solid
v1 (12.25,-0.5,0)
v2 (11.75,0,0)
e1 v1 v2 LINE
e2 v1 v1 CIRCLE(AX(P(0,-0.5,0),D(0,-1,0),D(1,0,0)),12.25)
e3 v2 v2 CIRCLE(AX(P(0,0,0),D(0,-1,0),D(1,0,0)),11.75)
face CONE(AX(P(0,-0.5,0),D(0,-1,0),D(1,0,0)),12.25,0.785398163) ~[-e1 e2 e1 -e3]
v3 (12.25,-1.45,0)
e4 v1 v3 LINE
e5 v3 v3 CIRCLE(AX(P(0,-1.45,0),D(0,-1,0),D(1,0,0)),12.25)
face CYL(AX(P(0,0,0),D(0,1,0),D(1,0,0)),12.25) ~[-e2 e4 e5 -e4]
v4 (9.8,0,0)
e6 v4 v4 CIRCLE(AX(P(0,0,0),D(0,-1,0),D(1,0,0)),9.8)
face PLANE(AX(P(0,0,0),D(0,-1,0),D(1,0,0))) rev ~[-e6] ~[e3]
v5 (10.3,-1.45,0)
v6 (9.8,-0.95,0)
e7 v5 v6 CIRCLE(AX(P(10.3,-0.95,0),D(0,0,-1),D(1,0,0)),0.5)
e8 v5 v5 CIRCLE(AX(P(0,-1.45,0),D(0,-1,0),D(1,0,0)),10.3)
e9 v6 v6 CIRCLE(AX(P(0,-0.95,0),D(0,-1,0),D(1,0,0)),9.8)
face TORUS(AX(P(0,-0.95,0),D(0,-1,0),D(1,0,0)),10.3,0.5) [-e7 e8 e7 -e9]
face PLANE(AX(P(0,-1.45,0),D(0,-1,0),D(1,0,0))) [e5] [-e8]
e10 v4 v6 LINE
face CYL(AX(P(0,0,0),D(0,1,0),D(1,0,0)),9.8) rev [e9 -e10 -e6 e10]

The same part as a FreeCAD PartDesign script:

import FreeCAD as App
import Part
import Sketcher
from FreeCAD import Vector


def edges_at(feature, points):
    """Names of the edges that pass closest to the given points."""
    edges = feature.Shape.Edges
    near = lambda p: min(range(len(edges)), key=lambda i: edges[i].distToShape(Part.Vertex(*p))[0])
    return sorted({f"Edge{near(p) + 1}" for p in points})

doc = App.newDocument("Part")
params = doc.addObject("Spreadsheet::Sheet", "Params")
for row, (alias, value) in enumerate([
    ("sketch1_diameter", "24.5 mm"),
    ("sketch1_diameter2", "19.6 mm"),
    ("pad1_length", "1.45 mm"),
    ("chamfer_size", "0.5 mm"),
    ("fillet_radius", "0.5 mm"),
], start=1):
    params.set(f"A{row}", alias)
    params.set(f"B{row}", "=" + value)
    params.setAlias(f"B{row}", alias)

body = doc.addObject("PartDesign::Body", "Body")

sketch1 = doc.addObject("Sketcher::SketchObject", "Sketch")
body.addObject(sketch1)
sketch1.AttachmentSupport = (doc.XZ_Plane, [""])
sketch1.MapMode = "FlatFace"
sketch1.addGeometry([
    Part.Circle(Vector(0, 0, 0), Vector(0, 0, 1), 12),
    Part.Circle(Vector(0, 0, 0), Vector(0, 0, 1), 10),
], False)
sketch1.addConstraint([
    Sketcher.Constraint("Coincident", 0, 3, -1, 1),
    Sketcher.Constraint("Coincident", 1, 3, -1, 1),
    Sketcher.Constraint("Diameter", 0, 24.5),
    Sketcher.Constraint("Diameter", 1, 19.6),
])
sketch1.setExpression("Constraints[2]", "Params.sketch1_diameter")
sketch1.setExpression("Constraints[3]", "Params.sketch1_diameter2")
pad1 = doc.addObject("PartDesign::Pad", "Pad")
body.addObject(pad1)
pad1.Profile = sketch1
pad1.setExpression("Length", "Params.pad1_length")
doc.recompute()

chamfer = doc.addObject("PartDesign::Chamfer", "Chamfer")
body.addObject(chamfer)
chamfer.Base = (pad1, edges_at(pad1, [(-12.25, 0, 0)]))
chamfer.setExpression("Size", "Params.chamfer_size")
doc.recompute()

fillet = doc.addObject("PartDesign::Fillet", "Fillet")
body.addObject(fillet)
fillet.Base = (chamfer, edges_at(chamfer, [(-9.8, -1.45, 0)]))
fillet.setExpression("Radius", "Params.fillet_radius")

doc.recompute()
